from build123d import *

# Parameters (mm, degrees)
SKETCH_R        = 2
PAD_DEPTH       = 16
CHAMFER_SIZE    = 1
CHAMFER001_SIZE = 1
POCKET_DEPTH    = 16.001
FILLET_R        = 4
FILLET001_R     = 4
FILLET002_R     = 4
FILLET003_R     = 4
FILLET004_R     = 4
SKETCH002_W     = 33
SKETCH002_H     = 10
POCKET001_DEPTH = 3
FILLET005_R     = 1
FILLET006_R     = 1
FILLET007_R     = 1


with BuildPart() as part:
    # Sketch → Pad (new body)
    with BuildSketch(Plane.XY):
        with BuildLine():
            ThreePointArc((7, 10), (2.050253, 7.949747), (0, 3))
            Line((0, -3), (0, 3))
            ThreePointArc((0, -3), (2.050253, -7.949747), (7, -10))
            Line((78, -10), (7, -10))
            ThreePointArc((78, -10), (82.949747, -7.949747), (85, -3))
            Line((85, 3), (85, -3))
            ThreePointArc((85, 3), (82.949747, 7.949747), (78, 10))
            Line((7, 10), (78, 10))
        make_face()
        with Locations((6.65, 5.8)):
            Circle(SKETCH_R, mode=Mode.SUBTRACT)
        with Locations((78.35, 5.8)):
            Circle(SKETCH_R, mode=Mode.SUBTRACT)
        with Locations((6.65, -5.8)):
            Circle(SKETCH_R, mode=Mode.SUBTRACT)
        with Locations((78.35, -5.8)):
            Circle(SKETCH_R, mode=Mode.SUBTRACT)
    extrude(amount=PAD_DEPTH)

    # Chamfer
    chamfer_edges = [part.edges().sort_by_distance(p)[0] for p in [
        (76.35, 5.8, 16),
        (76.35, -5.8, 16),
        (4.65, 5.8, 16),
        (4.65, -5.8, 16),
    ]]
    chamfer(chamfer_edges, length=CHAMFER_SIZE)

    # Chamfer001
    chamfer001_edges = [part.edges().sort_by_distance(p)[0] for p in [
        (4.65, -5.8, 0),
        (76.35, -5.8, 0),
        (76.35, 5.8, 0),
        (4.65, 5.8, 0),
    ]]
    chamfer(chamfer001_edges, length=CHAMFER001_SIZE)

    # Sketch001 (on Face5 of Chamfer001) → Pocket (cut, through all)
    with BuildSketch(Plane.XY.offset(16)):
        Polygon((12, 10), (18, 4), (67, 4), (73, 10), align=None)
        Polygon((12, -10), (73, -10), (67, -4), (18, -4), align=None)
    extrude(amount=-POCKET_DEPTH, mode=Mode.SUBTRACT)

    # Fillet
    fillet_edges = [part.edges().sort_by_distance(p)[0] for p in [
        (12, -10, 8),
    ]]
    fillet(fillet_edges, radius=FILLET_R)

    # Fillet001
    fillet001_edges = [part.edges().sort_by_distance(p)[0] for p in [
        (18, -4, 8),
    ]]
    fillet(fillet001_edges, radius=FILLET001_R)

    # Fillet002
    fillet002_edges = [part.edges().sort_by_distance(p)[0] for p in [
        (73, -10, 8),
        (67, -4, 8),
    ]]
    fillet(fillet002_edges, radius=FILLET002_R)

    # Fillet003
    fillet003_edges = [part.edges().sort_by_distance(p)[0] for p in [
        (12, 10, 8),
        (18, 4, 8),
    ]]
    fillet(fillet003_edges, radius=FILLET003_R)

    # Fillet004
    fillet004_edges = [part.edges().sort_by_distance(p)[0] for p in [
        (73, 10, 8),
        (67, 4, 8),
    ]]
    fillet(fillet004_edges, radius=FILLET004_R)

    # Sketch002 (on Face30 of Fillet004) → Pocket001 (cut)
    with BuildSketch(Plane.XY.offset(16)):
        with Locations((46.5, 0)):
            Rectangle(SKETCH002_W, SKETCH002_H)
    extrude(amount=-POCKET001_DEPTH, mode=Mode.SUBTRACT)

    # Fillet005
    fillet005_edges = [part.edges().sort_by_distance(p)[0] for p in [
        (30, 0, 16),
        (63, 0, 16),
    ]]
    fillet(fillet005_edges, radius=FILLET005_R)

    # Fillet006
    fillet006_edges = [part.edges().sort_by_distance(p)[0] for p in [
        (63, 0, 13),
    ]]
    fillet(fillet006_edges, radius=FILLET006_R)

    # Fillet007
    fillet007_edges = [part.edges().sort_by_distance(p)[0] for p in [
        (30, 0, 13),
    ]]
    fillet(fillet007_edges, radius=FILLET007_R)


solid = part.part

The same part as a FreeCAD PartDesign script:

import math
import FreeCAD as App
import Part
import Sketcher


def edges_at(feature, points):
    """Names of the edges that pass closest to the given points."""
    edges = feature.Shape.Edges
    near = lambda p: min(range(len(edges)), key=lambda i: edges[i].distToShape(Part.Vertex(*p))[0])
    return sorted({f"Edge{near(p) + 1}" for p in points})


def add_polygon(sketch, points):
    """Adds a closed chain of lines whose ends are joined by coincident constraints."""
    first, n = sketch.GeometryCount, len(points)
    for a, b in zip(points, points[1:] + points[:1]):
        sketch.addGeometry(Part.LineSegment(App.Vector(*a, 0), App.Vector(*b, 0)), False)
    for i in range(n):
        sketch.addConstraint(Sketcher.Constraint("Coincident", first + i, 2, first + (i + 1) % n, 1))

doc = App.newDocument("Part")
body = doc.addObject("PartDesign::Body", "Body")

# Sketch on XY plane
sketch1 = doc.addObject("Sketcher::SketchObject", "Sketch")
body.addObject(sketch1)
sketch1.AttachmentSupport = (doc.XY_Plane, [""])
sketch1.MapMode = "FlatFace"
sketch1.addGeometry(Part.ArcOfCircle(Part.Circle(App.Vector(7.000002, 2.999998, 0), App.Vector(0, 0, 1), 7.000002), math.radians(90.000013), math.radians(179.999987)), False)
sketch1.addGeometry(Part.LineSegment(App.Vector(0, 3, 0), App.Vector(0, -3, 0)), False)
sketch1.addGeometry(Part.ArcOfCircle(Part.Circle(App.Vector(7.000002, -2.999998, 0), App.Vector(0, 0, 1), 7.000002), math.radians(-179.999987), math.radians(-90.000013)), False)
sketch1.addGeometry(Part.LineSegment(App.Vector(7, -10, 0), App.Vector(78, -10, 0)), False)
sketch1.addGeometry(Part.ArcOfCircle(Part.Circle(App.Vector(77.999998, -2.999998, 0), App.Vector(0, 0, 1), 7.000002), math.radians(-89.999987), math.radians(-0.000013)), False)
sketch1.addGeometry(Part.LineSegment(App.Vector(85, -3, 0), App.Vector(85, 3, 0)), False)
sketch1.addGeometry(Part.ArcOfCircle(Part.Circle(App.Vector(77.999998, 2.999998, 0), App.Vector(0, 0, 1), 7.000002), math.radians(0.000013), math.radians(89.999987)), False)
sketch1.addGeometry(Part.LineSegment(App.Vector(78, 10, 0), App.Vector(7, 10, 0)), False)
sketch1.addGeometry(Part.Circle(App.Vector(6.65, -5.8, 0), App.Vector(0, 0, 1), 2), False)
sketch1.addGeometry(Part.Circle(App.Vector(78.35, -5.8, 0), App.Vector(0, 0, 1), 2), False)
sketch1.addGeometry(Part.Circle(App.Vector(6.65, 5.8, 0), App.Vector(0, 0, 1), 2), False)
sketch1.addGeometry(Part.Circle(App.Vector(78.35, 5.8, 0), App.Vector(0, 0, 1), 2), False)
sketch1.addConstraint(Sketcher.Constraint("Tangent", 0, 2, 1, 1))
sketch1.addConstraint(Sketcher.Constraint("Tangent", 1, 2, 2, 1))
sketch1.addConstraint(Sketcher.Constraint("Tangent", 2, 2, 3, 1))
sketch1.addConstraint(Sketcher.Constraint("Tangent", 3, 2, 4, 1))
sketch1.addConstraint(Sketcher.Constraint("Tangent", 4, 2, 5, 1))
sketch1.addConstraint(Sketcher.Constraint("Tangent", 5, 2, 6, 1))
sketch1.addConstraint(Sketcher.Constraint("Tangent", 6, 2, 7, 1))
sketch1.addConstraint(Sketcher.Constraint("Tangent", 7, 2, 0, 1))
sketch1.addConstraint(Sketcher.Constraint("Vertical", 1))
sketch1.addConstraint(Sketcher.Constraint("Horizontal", 3))
sketch1.addConstraint(Sketcher.Constraint("Vertical", 5))
sketch1.addConstraint(Sketcher.Constraint("Horizontal", 7))
sketch1.addConstraint(Sketcher.Constraint("Equal", 0, 2))
sketch1.addConstraint(Sketcher.Constraint("Equal", 2, 4))
sketch1.addConstraint(Sketcher.Constraint("Equal", 4, 6))
sketch1.addConstraint(Sketcher.Constraint("Equal", 8, 9))
sketch1.addConstraint(Sketcher.Constraint("Equal", 9, 10))
sketch1.addConstraint(Sketcher.Constraint("Equal", 10, 11))
sketch1.addConstraint(Sketcher.Constraint("Symmetric", 0, 2, 1, 2, -1, 1))
sketch1.addConstraint(Sketcher.Constraint("Symmetric", 8, 3, 10, 3, -1))
sketch1.addConstraint(Sketcher.Constraint("Symmetric", 9, 3, 11, 3, -1))
sketch1.addConstraint(Sketcher.Constraint("Horizontal", 8, 3, 9, 3))
sketch1.addConstraint(Sketcher.Constraint("Diameter", 8, 4.0))
sketch1.addConstraint(Sketcher.Constraint("Radius", 0, 7.000002))
sketch1.addConstraint(Sketcher.Constraint("DistanceX", 3, 1, 3, 2, 71.0))
sketch1.addConstraint(Sketcher.Constraint("DistanceY", 1, 2, 1, 1, 6.0))
sketch1.addConstraint(Sketcher.Constraint("DistanceY", 8, 3, -1, 1, 5.8))
sketch1.addConstraint(Sketcher.Constraint("DistanceX", 8, 3, 9, 3, 71.7))
sketch1.addConstraint(Sketcher.Constraint("DistanceX", -1, 1, 8, 3, 6.65))
pad1 = doc.addObject("PartDesign::Pad", "Pad")
body.addObject(pad1)
pad1.Profile = sketch1
pad1.Length = 16
doc.recompute()

chamfer = doc.addObject("PartDesign::Chamfer", "Chamfer")
body.addObject(chamfer)
chamfer.Base = (pad1, edges_at(pad1, [
    (76.35, 5.8, 16),
    (76.35, -5.8, 16),
    (4.65, 5.8, 16),
    (4.65, -5.8, 16),
]))
chamfer.Size = 1
doc.recompute()

chamfer2 = doc.addObject("PartDesign::Chamfer", "Chamfer001")
body.addObject(chamfer2)
chamfer2.Base = (chamfer, edges_at(chamfer, [
    (4.65, -5.8, 0),
    (76.35, -5.8, 0),
    (76.35, 5.8, 0),
    (4.65, 5.8, 0),
]))
chamfer2.Size = 1

# Sketch on XY plane
sketch2 = doc.addObject("Sketcher::SketchObject", "Sketch001")
body.addObject(sketch2)
sketch2.AttachmentSupport = (doc.XY_Plane, [""])
sketch2.MapMode = "FlatFace"
sketch2.AttachmentOffset = App.Placement(App.Vector(0, 0, 16), App.Rotation())
add_polygon(sketch2, [(12, 10), (18, 4), (67, 4), (73, 10)])  # lines 0-3
add_polygon(sketch2, [(12, -10), (73, -10), (67, -4), (18, -4)])  # lines 4-7
sketch2.addConstraint(Sketcher.Constraint("Horizontal", 1))
sketch2.addConstraint(Sketcher.Constraint("Horizontal", 3))
sketch2.addConstraint(Sketcher.Constraint("Horizontal", 4))
sketch2.addConstraint(Sketcher.Constraint("Horizontal", 6))
sketch2.addConstraint(Sketcher.Constraint("Symmetric", 2, 2, 4, 2, -1))
sketch2.addConstraint(Sketcher.Constraint("Symmetric", 1, 2, 5, 2, -1))
sketch2.addConstraint(Sketcher.Constraint("Perpendicular", 0, 2))
sketch2.addConstraint(Sketcher.Constraint("Perpendicular", 2, 5))
sketch2.addConstraint(Sketcher.Constraint("Perpendicular", 5, 7))
sketch2.addConstraint(Sketcher.Constraint("Vertical", 0, 2, 6, 2))
sketch2.addConstraint(Sketcher.Constraint("DistanceX", 1, 1, 1, 2, 49.0))
sketch2.addConstraint(Sketcher.Constraint("DistanceX", 3, 2, 3, 1, 61.0))
sketch2.addConstraint(Sketcher.Constraint("DistanceX", -1, 1, 0, 2, 18.0))
sketch2.addConstraint(Sketcher.Constraint("DistanceY", -1, 1, 0, 2, 4.0))
pocket1 = doc.addObject("PartDesign::Pocket", "Pocket")
body.addObject(pocket1)
pocket1.Profile = sketch2
pocket1.Type = "ThroughAll"
doc.recompute()

fillet = doc.addObject("PartDesign::Fillet", "Fillet")
body.addObject(fillet)
fillet.Base = (pocket1, edges_at(pocket1, [(12, -10, 8)]))
fillet.Radius = 4
doc.recompute()

fillet2 = doc.addObject("PartDesign::Fillet", "Fillet001")
body.addObject(fillet2)
fillet2.Base = (fillet, edges_at(fillet, [(18, -4, 8)]))
fillet2.Radius = 4
doc.recompute()

fillet3 = doc.addObject("PartDesign::Fillet", "Fillet002")
body.addObject(fillet3)
fillet3.Base = (fillet2, edges_at(fillet2, [(73, -10, 8), (67, -4, 8)]))
fillet3.Radius = 4
doc.recompute()

fillet4 = doc.addObject("PartDesign::Fillet", "Fillet003")
body.addObject(fillet4)
fillet4.Base = (fillet3, edges_at(fillet3, [(12, 10, 8), (18, 4, 8)]))
fillet4.Radius = 4
doc.recompute()

fillet5 = doc.addObject("PartDesign::Fillet", "Fillet004")
body.addObject(fillet5)
fillet5.Base = (fillet4, edges_at(fillet4, [(73, 10, 8), (67, 4, 8)]))
fillet5.Radius = 4

# Sketch on XY plane
sketch3 = doc.addObject("Sketcher::SketchObject", "Sketch002")
body.addObject(sketch3)
sketch3.AttachmentSupport = (doc.XY_Plane, [""])
sketch3.MapMode = "FlatFace"
sketch3.AttachmentOffset = App.Placement(App.Vector(0, 0, 16), App.Rotation())
add_polygon(sketch3, [(30, 5), (30, -5), (63, -5), (63, 5)])  # lines 0-3
sketch3.addConstraint(Sketcher.Constraint("Vertical", 0))
sketch3.addConstraint(Sketcher.Constraint("Horizontal", 1))
sketch3.addConstraint(Sketcher.Constraint("Vertical", 2))
sketch3.addConstraint(Sketcher.Constraint("Horizontal", 3))
sketch3.addConstraint(Sketcher.Constraint("DistanceX", 1, 1, 1, 2, 33.0))
sketch3.addConstraint(Sketcher.Constraint("DistanceY", 0, 2, 0, 1, 10.0))
sketch3.addConstraint(Sketcher.Constraint("DistanceX", -1, 1, 0, 2, 30.0))
sketch3.addConstraint(Sketcher.Constraint("DistanceY", 0, 2, -1, 1, 5.0))
pocket2 = doc.addObject("PartDesign::Pocket", "Pocket001")
body.addObject(pocket2)
pocket2.Profile = sketch3
pocket2.Length = 3
doc.recompute()

fillet6 = doc.addObject("PartDesign::Fillet", "Fillet005")
body.addObject(fillet6)
fillet6.Base = (pocket2, edges_at(pocket2, [(30, 0, 16), (63, 0, 16)]))
fillet6.Radius = 1
doc.recompute()

fillet7 = doc.addObject("PartDesign::Fillet", "Fillet006")
body.addObject(fillet7)
fillet7.Base = (fillet6, edges_at(fillet6, [(63, 0, 13)]))
fillet7.Radius = 1
doc.recompute()

fillet8 = doc.addObject("PartDesign::Fillet", "Fillet007")
body.addObject(fillet8)
fillet8.Base = (fillet7, edges_at(fillet7, [(30, 0, 13)]))
fillet8.Radius = 1

doc.recompute()
